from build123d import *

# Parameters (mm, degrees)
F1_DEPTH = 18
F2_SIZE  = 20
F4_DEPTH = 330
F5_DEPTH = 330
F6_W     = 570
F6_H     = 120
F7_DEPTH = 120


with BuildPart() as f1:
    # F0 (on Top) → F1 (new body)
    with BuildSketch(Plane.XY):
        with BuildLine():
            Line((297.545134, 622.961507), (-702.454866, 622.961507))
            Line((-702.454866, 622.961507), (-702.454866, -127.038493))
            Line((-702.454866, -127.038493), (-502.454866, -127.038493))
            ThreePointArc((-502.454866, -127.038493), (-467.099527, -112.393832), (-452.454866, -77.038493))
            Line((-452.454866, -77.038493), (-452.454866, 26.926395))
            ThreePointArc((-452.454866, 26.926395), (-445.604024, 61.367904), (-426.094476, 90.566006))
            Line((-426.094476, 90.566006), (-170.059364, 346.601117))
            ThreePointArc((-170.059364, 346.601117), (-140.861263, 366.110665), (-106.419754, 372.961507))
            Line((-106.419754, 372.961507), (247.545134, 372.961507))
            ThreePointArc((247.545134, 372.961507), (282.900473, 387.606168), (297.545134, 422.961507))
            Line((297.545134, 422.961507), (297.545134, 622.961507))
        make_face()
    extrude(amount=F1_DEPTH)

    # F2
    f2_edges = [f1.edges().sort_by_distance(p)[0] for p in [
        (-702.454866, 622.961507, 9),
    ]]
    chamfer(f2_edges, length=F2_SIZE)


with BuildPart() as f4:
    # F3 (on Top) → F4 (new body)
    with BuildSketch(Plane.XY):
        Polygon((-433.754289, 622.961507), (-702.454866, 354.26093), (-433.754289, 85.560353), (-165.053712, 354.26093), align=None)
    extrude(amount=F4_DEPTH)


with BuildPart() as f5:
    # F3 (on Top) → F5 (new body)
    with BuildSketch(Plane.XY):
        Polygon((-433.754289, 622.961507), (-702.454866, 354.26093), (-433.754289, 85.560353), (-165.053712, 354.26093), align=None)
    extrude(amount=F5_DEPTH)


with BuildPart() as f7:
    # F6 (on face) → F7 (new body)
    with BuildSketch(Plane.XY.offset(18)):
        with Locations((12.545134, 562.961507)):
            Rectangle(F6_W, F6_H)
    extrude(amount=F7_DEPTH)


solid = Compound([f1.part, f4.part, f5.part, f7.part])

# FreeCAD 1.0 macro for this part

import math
import FreeCAD as App
import Part
import Sketcher
from FreeCAD import Vector
Q = App.Units.Quantity


def edges_at(feature, points):
    """Names of the edges that pass closest to the given points."""
    edges = feature.Shape.Edges
    near = lambda p: min(range(len(edges)), key=lambda i: edges[i].distToShape(Part.Vertex(*p))[0])
    return sorted({f"Edge{near(p) + 1}" for p in points})


def add_polygon(sketch, points):
    """Adds a closed chain of lines whose ends are joined by coincident constraints."""
    first, n = sketch.GeometryCount, len(points)
    for a, b in zip(points, points[1:] + points[:1]):
        sketch.addGeometry(Part.LineSegment(App.Vector(*a, 0), App.Vector(*b, 0)), False)
    for i in range(n):
        sketch.addConstraint(Sketcher.Constraint("Coincident", first + i, 2, first + (i + 1) % n, 1))

doc = App.newDocument("Part")
body = doc.addObject("PartDesign::Body", "Body")

# Sketch on XY plane
sketch1 = body.newObject("Sketcher::SketchObject", "Sketch")
sketch1.AttachmentSupport = (doc.getObject("XY_Plane"), [""])
sketch1.MapMode = "FlatFace"
sketch1.addGeometry([
    Part.LineSegment(Vector(298, 623, 0), Vector(-702, 623, 0)),  # 0
    Part.LineSegment(Vector(-702, 623, 0), Vector(-702, -127, 0)),  # 1
    Part.LineSegment(Vector(-702, -127, 0), Vector(-502, -127, 0)),  # 2
    Part.ArcOfCircle(Part.Circle(Vector(-502, -77, 0), Vector(0, 0, 1), 50), math.radians(-90), math.radians(0)),  # 3
    Part.LineSegment(Vector(-452, -77, 0), Vector(-452, 27, 0)),  # 4
    Part.ArcOfCircle(Part.Circle(Vector(-362, 27, 0), Vector(0, 0, 1), 90), math.radians(135), math.radians(180)),  # 5
    Part.LineSegment(Vector(-426, 91, 0), Vector(-170, 347, 0)),  # 6
    Part.ArcOfCircle(Part.Circle(Vector(-106, 283, 0), Vector(0, 0, 1), 90), math.radians(90), math.radians(135)),  # 7
    Part.LineSegment(Vector(-106, 373, 0), Vector(248, 373, 0)),  # 8
    Part.ArcOfCircle(Part.Circle(Vector(248, 423, 0), Vector(0, 0, 1), 50), math.radians(-90), math.radians(0)),  # 9
    Part.LineSegment(Vector(298, 423, 0), Vector(298, 623, 0)),  # 10
], False)
sketch1.addConstraint([
    Sketcher.Constraint("Coincident", 0, 2, 1, 1),
    Sketcher.Constraint("Coincident", 1, 2, 2, 1),
    Sketcher.Constraint("Tangent", 2, 2, 3, 1),
    Sketcher.Constraint("Tangent", 3, 2, 4, 1),
    Sketcher.Constraint("Tangent", 4, 2, 5, 2),
    Sketcher.Constraint("Tangent", 5, 1, 6, 1),
    Sketcher.Constraint("Tangent", 6, 2, 7, 2),
    Sketcher.Constraint("Tangent", 7, 1, 8, 1),
    Sketcher.Constraint("Tangent", 8, 2, 9, 1),
    Sketcher.Constraint("Tangent", 9, 2, 10, 1),
    Sketcher.Constraint("Coincident", 10, 2, 0, 1),
    Sketcher.Constraint("Horizontal", 0),
    Sketcher.Constraint("Vertical", 1),
    Sketcher.Constraint("Horizontal", 2),
    Sketcher.Constraint("Vertical", 4),
    Sketcher.Constraint("Horizontal", 8),
    Sketcher.Constraint("Vertical", 10),
    Sketcher.Constraint("Equal", 3, 9),
    Sketcher.Constraint("Equal", 2, 10),
    Sketcher.Constraint("Radius", 3, 50.0),
    Sketcher.Constraint("Radius", 5, 90.000001),
    Sketcher.Constraint("DistanceX", 0, 2, 0, 1, 1000.0),
    Sketcher.Constraint("DistanceX", 2, 1, 2, 2, 200.0),
    Sketcher.Constraint("DistanceY", 1, 2, 1, 1, 750.0),
    Sketcher.Constraint("Angle", 6, Q("45 deg")),
    Sketcher.Constraint("Radius", 7, 89.999996),
    Sketcher.Constraint("DistanceY", 4, 1, 4, 2, 103.964888),
    Sketcher.Constraint("DistanceY", -1, 1, 7, 3, 282.961511),
    Sketcher.Constraint("DistanceX", 3, 3, -1, 1, 502.454866),
])
pad1 = body.newObject("PartDesign::Pad", "Pad")
pad1.Profile = sketch1
pad1.Length = 18
doc.recompute()

chamfer = body.newObject("PartDesign::Chamfer", "Chamfer")
chamfer.Base = (pad1, edges_at(pad1, [(-702.455, 622.962, 9)]))
chamfer.Size = 20
body2 = doc.addObject("PartDesign::Body", "Body001")

# Sketch on XY plane
sketch2 = body2.newObject("Sketcher::SketchObject", "Sketch001")
sketch2.AttachmentSupport = (doc.getObject("XY_Plane001"), [""])
sketch2.MapMode = "FlatFace"
add_polygon(sketch2, [(-434, 623), (-702, 354), (-434, 86), (-165, 354)])  # lines 0-3
sketch2.addConstraint([
    Sketcher.Constraint("Perpendicular", 0, 1),
    Sketcher.Constraint("Perpendicular", 1, 2),
    Sketcher.Constraint("Perpendicular", 2, 3),
    Sketcher.Constraint("Horizontal", 0, 2, 2, 2),
    Sketcher.Constraint("Vertical", 1, 2, 3, 2),
    Sketcher.Constraint("Distance", 0, 380.0),
    Sketcher.Constraint("DistanceY", -1, 1, 0, 2, 354.26093),
    Sketcher.Constraint("DistanceX", 1, 2, -1, 1, 433.754289),
])
pad2 = body2.newObject("PartDesign::Pad", "Pad001")
pad2.Profile = sketch2
pad2.Length = 330
body3 = doc.addObject("PartDesign::Body", "Body002")

# Sketch on XY plane
sketch3 = body3.newObject("Sketcher::SketchObject", "Sketch002")
sketch3.AttachmentSupport = (doc.getObject("XY_Plane002"), [""])
sketch3.MapMode = "FlatFace"
add_polygon(sketch3, [(-434, 623), (-702, 354), (-434, 86), (-165, 354)])  # lines 0-3
sketch3.addConstraint([
    Sketcher.Constraint("Perpendicular", 0, 1),
    Sketcher.Constraint("Perpendicular", 1, 2),
    Sketcher.Constraint("Perpendicular", 2, 3),
    Sketcher.Constraint("Horizontal", 0, 2, 2, 2),
    Sketcher.Constraint("Vertical", 1, 2, 3, 2),
    Sketcher.Constraint("Distance", 0, 380.0),
    Sketcher.Constraint("DistanceY", -1, 1, 0, 2, 354.26093),
    Sketcher.Constraint("DistanceX", 1, 2, -1, 1, 433.754289),
])
pad3 = body3.newObject("PartDesign::Pad", "Pad002")
pad3.Profile = sketch3
pad3.Length = 330
body4 = doc.addObject("PartDesign::Body", "Body003")

# Sketch on XY plane
sketch4 = body4.newObject("Sketcher::SketchObject", "Sketch003")
sketch4.AttachmentSupport = (doc.getObject("XY_Plane003"), [""])
sketch4.MapMode = "FlatFace"
sketch4.AttachmentOffset = App.Placement(Vector(0, 0, 18), App.Rotation())
add_polygon(sketch4, [(-272, 623), (-272, 503), (298, 503), (298, 623)])  # lines 0-3
sketch4.addConstraint([
    Sketcher.Constraint("Vertical", 0),
    Sketcher.Constraint("Horizontal", 1),
    Sketcher.Constraint("Vertical", 2),
    Sketcher.Constraint("Horizontal", 3),
    Sketcher.Constraint("DistanceX", 1, 1, 1, 2, 570.0),
    Sketcher.Constraint("DistanceY", 0, 2, 0, 1, 120.0),
    Sketcher.Constraint("DistanceX", 0, 2, -1, 1, 272.454866),
    Sketcher.Constraint("DistanceY", -1, 1, 0, 2, 502.961507),
])
pad4 = body4.newObject("PartDesign::Pad", "Pad003")
pad4.Profile = sketch4
pad4.Length = 120

doc.recompute()
